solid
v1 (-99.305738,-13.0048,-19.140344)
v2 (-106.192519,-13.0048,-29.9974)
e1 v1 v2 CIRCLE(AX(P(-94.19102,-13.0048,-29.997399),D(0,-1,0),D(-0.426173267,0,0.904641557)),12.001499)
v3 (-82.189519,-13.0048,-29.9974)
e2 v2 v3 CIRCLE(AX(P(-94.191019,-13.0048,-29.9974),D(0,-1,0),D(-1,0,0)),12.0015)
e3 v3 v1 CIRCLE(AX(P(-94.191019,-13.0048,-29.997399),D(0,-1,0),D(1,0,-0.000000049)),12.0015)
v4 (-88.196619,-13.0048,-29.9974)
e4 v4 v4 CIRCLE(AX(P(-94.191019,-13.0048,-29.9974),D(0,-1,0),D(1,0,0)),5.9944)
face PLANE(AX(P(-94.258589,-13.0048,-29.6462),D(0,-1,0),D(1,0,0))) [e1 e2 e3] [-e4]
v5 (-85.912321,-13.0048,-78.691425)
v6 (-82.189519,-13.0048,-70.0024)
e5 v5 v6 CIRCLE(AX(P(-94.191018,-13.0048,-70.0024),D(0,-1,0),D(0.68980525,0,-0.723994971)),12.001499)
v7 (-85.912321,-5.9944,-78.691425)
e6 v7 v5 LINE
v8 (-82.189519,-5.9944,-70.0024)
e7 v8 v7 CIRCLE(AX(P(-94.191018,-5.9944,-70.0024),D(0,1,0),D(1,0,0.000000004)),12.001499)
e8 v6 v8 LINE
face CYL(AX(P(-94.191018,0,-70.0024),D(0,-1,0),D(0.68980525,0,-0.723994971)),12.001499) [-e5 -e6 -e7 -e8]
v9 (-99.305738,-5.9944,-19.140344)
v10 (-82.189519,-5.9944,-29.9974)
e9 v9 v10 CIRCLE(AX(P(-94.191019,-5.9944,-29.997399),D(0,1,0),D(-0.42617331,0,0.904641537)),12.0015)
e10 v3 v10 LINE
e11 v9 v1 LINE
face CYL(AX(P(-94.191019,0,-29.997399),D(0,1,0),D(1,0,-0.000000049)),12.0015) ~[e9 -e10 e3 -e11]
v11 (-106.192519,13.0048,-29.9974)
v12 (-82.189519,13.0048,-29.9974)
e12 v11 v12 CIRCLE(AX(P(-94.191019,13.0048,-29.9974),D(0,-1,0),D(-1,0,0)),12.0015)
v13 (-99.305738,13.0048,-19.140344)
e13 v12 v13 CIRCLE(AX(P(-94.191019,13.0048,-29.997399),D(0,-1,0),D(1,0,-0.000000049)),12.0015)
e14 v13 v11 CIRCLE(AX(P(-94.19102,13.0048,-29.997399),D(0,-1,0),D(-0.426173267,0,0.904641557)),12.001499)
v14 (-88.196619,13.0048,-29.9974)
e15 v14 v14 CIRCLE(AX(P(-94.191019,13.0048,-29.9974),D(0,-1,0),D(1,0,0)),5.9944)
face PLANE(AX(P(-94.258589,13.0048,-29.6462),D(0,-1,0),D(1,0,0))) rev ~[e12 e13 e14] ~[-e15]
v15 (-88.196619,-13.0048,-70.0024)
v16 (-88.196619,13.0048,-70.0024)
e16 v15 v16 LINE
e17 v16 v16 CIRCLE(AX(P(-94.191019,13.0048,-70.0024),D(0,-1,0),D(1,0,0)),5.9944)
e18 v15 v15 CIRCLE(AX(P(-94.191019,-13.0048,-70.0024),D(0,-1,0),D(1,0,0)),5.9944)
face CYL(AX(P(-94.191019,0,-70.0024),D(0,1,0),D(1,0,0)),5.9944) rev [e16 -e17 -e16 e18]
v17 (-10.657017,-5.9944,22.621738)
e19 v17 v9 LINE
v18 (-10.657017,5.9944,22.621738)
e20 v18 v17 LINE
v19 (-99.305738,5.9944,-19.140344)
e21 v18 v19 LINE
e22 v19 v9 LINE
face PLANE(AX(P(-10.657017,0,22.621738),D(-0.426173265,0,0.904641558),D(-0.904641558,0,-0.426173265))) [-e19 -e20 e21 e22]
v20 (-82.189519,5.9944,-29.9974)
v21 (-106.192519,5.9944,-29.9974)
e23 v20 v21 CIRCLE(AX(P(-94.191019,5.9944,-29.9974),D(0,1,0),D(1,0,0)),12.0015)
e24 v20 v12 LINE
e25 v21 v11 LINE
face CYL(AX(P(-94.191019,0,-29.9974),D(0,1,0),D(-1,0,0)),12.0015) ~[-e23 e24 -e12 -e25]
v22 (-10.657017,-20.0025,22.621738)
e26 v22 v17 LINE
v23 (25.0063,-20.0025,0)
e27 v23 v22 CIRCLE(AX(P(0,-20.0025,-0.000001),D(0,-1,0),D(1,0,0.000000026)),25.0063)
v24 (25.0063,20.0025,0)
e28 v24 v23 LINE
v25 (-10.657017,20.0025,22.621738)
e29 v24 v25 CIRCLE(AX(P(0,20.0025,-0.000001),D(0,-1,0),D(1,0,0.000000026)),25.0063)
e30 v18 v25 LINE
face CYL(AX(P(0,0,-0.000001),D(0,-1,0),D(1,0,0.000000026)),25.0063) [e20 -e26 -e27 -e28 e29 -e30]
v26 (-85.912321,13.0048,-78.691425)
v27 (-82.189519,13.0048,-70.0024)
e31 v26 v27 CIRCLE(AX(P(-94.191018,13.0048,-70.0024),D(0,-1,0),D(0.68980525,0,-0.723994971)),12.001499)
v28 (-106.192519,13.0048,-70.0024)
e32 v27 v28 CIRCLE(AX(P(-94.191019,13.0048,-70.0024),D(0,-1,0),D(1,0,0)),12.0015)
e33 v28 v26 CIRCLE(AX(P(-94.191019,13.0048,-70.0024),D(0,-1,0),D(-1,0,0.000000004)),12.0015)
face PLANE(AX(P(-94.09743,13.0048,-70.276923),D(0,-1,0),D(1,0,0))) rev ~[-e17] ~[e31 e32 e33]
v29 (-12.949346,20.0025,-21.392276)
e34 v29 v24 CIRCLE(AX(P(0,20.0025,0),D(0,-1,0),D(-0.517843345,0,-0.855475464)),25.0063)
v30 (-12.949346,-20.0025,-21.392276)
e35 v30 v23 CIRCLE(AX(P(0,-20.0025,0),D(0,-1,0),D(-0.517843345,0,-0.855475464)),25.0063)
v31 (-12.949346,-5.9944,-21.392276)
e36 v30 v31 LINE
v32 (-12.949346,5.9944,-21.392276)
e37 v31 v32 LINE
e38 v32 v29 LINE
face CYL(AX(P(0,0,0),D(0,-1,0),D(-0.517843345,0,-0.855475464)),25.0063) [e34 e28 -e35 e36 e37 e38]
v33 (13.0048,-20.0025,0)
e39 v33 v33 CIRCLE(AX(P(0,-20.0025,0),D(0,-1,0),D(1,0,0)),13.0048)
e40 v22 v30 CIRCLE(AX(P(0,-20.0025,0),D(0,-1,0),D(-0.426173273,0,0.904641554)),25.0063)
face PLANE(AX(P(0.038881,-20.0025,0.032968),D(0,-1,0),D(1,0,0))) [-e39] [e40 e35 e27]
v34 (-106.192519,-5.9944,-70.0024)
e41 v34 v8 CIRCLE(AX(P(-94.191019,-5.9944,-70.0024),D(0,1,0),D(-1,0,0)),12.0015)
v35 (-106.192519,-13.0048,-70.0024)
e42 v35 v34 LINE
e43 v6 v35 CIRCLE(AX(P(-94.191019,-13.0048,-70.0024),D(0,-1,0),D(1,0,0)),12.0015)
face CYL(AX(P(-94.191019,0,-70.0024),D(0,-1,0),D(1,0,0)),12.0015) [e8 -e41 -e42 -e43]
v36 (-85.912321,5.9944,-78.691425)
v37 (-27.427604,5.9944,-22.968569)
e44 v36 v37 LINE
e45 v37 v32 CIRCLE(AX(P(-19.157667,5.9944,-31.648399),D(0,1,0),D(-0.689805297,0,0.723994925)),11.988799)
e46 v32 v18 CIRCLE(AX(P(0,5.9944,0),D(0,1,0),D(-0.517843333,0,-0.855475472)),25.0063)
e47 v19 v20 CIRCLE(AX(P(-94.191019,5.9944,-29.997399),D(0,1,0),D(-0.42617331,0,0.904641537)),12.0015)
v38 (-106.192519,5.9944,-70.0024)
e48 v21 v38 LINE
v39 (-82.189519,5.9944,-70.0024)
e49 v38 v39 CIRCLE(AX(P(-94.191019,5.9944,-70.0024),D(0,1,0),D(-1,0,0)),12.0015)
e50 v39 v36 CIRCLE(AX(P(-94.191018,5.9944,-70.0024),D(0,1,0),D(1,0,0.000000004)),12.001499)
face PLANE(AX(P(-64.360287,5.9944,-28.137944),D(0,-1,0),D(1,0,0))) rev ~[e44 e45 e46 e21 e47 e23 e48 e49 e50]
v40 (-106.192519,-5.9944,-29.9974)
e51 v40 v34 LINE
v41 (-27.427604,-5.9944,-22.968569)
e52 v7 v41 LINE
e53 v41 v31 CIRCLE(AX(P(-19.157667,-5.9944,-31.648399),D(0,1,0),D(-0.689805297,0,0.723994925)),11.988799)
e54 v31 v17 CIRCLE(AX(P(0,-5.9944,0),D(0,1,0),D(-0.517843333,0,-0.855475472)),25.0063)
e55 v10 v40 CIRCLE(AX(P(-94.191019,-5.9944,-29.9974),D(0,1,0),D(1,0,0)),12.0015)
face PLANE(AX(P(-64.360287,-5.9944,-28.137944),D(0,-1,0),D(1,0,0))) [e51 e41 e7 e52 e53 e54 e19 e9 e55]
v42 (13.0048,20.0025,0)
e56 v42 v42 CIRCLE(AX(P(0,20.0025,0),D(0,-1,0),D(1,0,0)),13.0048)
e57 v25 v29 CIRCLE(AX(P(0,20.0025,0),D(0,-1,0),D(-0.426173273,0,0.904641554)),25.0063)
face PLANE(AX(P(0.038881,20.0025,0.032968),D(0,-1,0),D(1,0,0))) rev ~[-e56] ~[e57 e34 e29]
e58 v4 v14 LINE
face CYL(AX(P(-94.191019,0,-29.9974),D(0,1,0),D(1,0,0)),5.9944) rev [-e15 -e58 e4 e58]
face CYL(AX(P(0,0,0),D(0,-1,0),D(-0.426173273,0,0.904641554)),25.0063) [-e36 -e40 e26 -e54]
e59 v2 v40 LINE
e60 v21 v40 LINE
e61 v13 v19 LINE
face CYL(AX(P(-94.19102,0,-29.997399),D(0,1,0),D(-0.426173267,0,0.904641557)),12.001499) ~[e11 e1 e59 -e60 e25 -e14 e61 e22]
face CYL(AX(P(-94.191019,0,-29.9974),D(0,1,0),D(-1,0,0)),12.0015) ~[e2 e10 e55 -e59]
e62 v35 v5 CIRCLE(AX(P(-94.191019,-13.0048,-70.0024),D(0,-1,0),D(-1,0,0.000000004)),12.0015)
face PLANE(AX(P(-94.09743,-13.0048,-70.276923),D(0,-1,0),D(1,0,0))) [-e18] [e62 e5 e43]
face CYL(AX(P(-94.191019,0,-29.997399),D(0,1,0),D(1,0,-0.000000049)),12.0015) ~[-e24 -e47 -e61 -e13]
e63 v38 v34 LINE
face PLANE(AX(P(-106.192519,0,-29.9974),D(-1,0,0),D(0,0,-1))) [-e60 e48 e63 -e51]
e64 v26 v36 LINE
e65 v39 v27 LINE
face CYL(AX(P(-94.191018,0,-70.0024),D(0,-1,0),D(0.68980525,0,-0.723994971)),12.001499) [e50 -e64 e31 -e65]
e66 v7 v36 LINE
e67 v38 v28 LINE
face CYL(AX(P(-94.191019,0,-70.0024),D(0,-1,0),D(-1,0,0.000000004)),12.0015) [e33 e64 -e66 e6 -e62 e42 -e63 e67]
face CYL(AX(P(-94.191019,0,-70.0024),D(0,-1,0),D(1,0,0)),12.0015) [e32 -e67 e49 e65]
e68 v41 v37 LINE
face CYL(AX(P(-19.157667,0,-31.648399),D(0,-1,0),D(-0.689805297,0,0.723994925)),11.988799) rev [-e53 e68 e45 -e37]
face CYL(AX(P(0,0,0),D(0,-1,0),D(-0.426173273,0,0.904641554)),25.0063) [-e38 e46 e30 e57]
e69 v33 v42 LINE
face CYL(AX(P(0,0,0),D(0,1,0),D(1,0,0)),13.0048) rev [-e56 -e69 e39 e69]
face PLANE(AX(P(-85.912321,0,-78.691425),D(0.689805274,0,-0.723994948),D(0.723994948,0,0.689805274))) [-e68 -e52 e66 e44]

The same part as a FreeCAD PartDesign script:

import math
import FreeCAD as App
import Part
import Sketcher

V = App.Vector
Q = App.Units.Quantity

doc = App.newDocument("Part")
params = doc.addObject("Spreadsheet::Sheet", "Params")
for row, (alias, value) in enumerate([
    ("sketch1_diameter", "1.024 in"),
    ("pad1_length", "1.575 in"),
    ("sketch2_radius", "0.472 in"),
    ("sketch2_height", "1.575 in"),
    ("sketch2_length", "3.858 in"),
    ("pad2_length", "0.472 in"),
    ("sketch3_diameter", "0.472 in"),
    ("pad3_length", "1.024 in"),
], start=1):
    params.set(f"A{row}", alias)
    params.set(f"B{row}", "=" + value)
    params.setAlias(f"B{row}", alias)

body = doc.addObject("PartDesign::Body", "Body")

sketch1 = body.newObject("Sketcher::SketchObject", "Sketch")
sketch1.AttachmentSupport = (doc.getObject("XZ_Plane"), [""])
sketch1.MapMode = "FlatFace"
sketch1.addGeometry([
    Part.ArcOfCircle(Part.Circle(V(0, 0, 0), V(0, 0, 1), 25.0063), math.radians(-121.187698), math.radians(0)),
    Part.ArcOfCircle(Part.Circle(V(0, -0.000001, 0), V(0, 0, 1), 25.0063), math.radians(0.000002), math.radians(115.22495)),
    Part.ArcOfCircle(Part.Circle(V(0, 0, 0), V(0, 0, 1), 25.0063), math.radians(115.22495), math.radians(238.812303)),
    Part.Circle(V(0, 0, 0), V(0, 0, 1), 13.0048),
], False)
sketch1.addConstraint([
    Sketcher.Constraint("Tangent", 0, 2, 1, 1),
    Sketcher.Constraint("Tangent", 1, 2, 2, 1),
    Sketcher.Constraint("Tangent", 2, 2, 0, 1),
    Sketcher.Constraint("Coincident", 0, 3, -1, 1),
    Sketcher.Constraint("Coincident", 3, 3, -1, 1),
    Sketcher.Constraint("PointOnObject", 0, 2, -1),
    Sketcher.Constraint("Diameter", 3, Q("1.024 in")),
    Sketcher.Constraint("Radius", 0, Q("0.9845 in")),
    Sketcher.Constraint("DistanceY", 1, 3, 1, 2, Q("22.621739 mm")),
    Sketcher.Constraint("DistanceX", 2, 2, -1, 1, Q("12.949346 mm")),
])
sketch1.setExpression("Constraints[6]", "Params.sketch1_diameter")
pad1 = body.newObject("PartDesign::Pad", "Pad")
pad1.Profile = sketch1
pad1.setExpression("Length", "Params.pad1_length")
pad1.Midplane = True

sketch2 = body.newObject("Sketcher::SketchObject", "Sketch001")
sketch2.AttachmentSupport = (doc.getObject("XZ_Plane"), [""])
sketch2.MapMode = "FlatFace"
sketch2.addGeometry([
    Part.ArcOfCircle(Part.Circle(V(0, 0, 0), V(0, 0, 1), 25.0063), math.radians(115.22495), math.radians(238.812303)),
    Part.LineSegment(V(-10.657017, 22.621738, 0), V(-99.305738, -19.140344, 0)),
    Part.ArcOfCircle(Part.Circle(V(-94.191019, -29.997399, 0), V(0, 0, 1), 12.0015), math.radians(-0.000003), math.radians(115.224953)),
    Part.ArcOfCircle(Part.Circle(V(-94.191019, -29.9974, 0), V(0, 0, 1), 12.0015), math.radians(180), math.radians(360)),
    Part.LineSegment(V(-106.192519, -29.9974, 0), V(-106.192519, -70.0024, 0)),
    Part.ArcOfCircle(Part.Circle(V(-94.191019, -70.0024, 0), V(0, 0, 1), 12.0015), math.radians(0), math.radians(180)),
    Part.ArcOfCircle(Part.Circle(V(-94.191018, -70.0024, 0), V(0, 0, 1), 12.001499), math.radians(-46.385305), math.radians(0)),
    Part.LineSegment(V(-85.912321, -78.691425, 0), V(-27.427604, -22.968569, 0)),
    Part.ArcOfCircle(Part.Circle(V(-19.157667, -31.648399, 0), V(0, 0, 1), 11.988799), math.radians(58.812295), math.radians(133.614698)),
], False)
sketch2.addConstraint([
    Sketcher.Constraint("Tangent", 0, 1, 1, 1),
    Sketcher.Constraint("Tangent", 1, 2, 2, 2),
    Sketcher.Constraint("Tangent", 2, 1, 3, 2),
    Sketcher.Constraint("Tangent", 3, 1, 4, 1),
    Sketcher.Constraint("Tangent", 4, 2, 5, 2),
    Sketcher.Constraint("Tangent", 5, 1, 6, 2),
    Sketcher.Constraint("Tangent", 6, 1, 7, 1),
    Sketcher.Constraint("Tangent", 7, 2, 8, 2),
    Sketcher.Constraint("Tangent", 8, 1, 0, 2),
    Sketcher.Constraint("Vertical", 4),
    Sketcher.Constraint("Coincident", 0, 3, -1, 1),
    Sketcher.Constraint("Equal", 2, 3),
    Sketcher.Constraint("Equal", 3, 5),
    Sketcher.Constraint("Equal", 5, 6),
    Sketcher.Constraint("Horizontal", 3, 3, 2, 1),
    Sketcher.Constraint("Horizontal", 4, 2, 5, 1),
    Sketcher.Constraint("Radius", 8, Q("0.472 in")),
    Sketcher.Constraint("Radius", 0, Q("0.9845 in")),
    Sketcher.Constraint("Radius", 2, Q("0.4725 in")),
    Sketcher.Constraint("DistanceY", 4, 2, 4, 1, Q("1.575 in")),
    Sketcher.Constraint("DistanceY", 6, 3, 8, 3, Q("1.5100001 in")),
    Sketcher.Constraint("Distance", 1, Q("3.858 in")),
    Sketcher.Constraint("DistanceY", 2, 3, -1, 1, Q("1.181 in")),
])
sketch2.setExpression("Constraints[16]", "Params.sketch2_radius")
sketch2.setExpression("Constraints[19]", "Params.sketch2_height")
sketch2.setExpression("Constraints[21]", "Params.sketch2_length")
pad2 = body.newObject("PartDesign::Pad", "Pad001")
pad2.Profile = sketch2
pad2.setExpression("Length", "Params.pad2_length")
pad2.Midplane = True

sketch3 = body.newObject("Sketcher::SketchObject", "Sketch002")
sketch3.AttachmentSupport = (doc.getObject("XZ_Plane"), [""])
sketch3.MapMode = "FlatFace"
sketch3.addGeometry([
    Part.ArcOfCircle(Part.Circle(V(-94.191019, -29.997399, 0), V(0, 0, 1), 12.0015), math.radians(-0.000003), math.radians(115.224953)),
    Part.ArcOfCircle(Part.Circle(V(-94.19102, -29.997399, 0), V(0, 0, 1), 12.001499), math.radians(115.22495), math.radians(180.000006)),
    Part.ArcOfCircle(Part.Circle(V(-94.191019, -29.9974, 0), V(0, 0, 1), 12.0015), math.radians(180), math.radians(360)),
    Part.Circle(V(-94.191019, -29.9974, 0), V(0, 0, 1), 5.9944),
    Part.ArcOfCircle(Part.Circle(V(-94.191019, -70.0024, 0), V(0, 0, 1), 12.0015), math.radians(180), math.radians(313.614699)),
    Part.ArcOfCircle(Part.Circle(V(-94.191018, -70.0024, 0), V(0, 0, 1), 12.001499), math.radians(-46.385305), math.radians(0)),
    Part.ArcOfCircle(Part.Circle(V(-94.191019, -70.0024, 0), V(0, 0, 1), 12.0015), math.radians(0), math.radians(180)),
    Part.Circle(V(-94.191019, -70.0024, 0), V(0, 0, 1), 5.9944),
], False)
sketch3.addConstraint([
    Sketcher.Constraint("Tangent", 0, 2, 1, 1),
    Sketcher.Constraint("Tangent", 1, 2, 2, 1),
    Sketcher.Constraint("Tangent", 2, 2, 0, 1),
    Sketcher.Constraint("Tangent", 4, 2, 5, 1),
    Sketcher.Constraint("Tangent", 5, 2, 6, 1),
    Sketcher.Constraint("Tangent", 6, 2, 4, 1),
    Sketcher.Constraint("Coincident", 3, 3, 0, 3),
    Sketcher.Constraint("Coincident", 7, 3, 4, 3),
    Sketcher.Constraint("Equal", 2, 4),
    Sketcher.Constraint("Equal", 3, 7),
    Sketcher.Constraint("Horizontal", 3, 3, 1, 2),
    Sketcher.Constraint("Horizontal", 1, 2, 2, 2),
    Sketcher.Constraint("Horizontal", 7, 3, 5, 2),
    Sketcher.Constraint("Horizontal", 5, 2, 6, 2),
    Sketcher.Constraint("Vertical", 3, 3, 4, 3),
    Sketcher.Constraint("Diameter", 3, Q("0.472 in")),
    Sketcher.Constraint("Radius", 0, Q("0.4725 in")),
    Sketcher.Constraint("DistanceY", 0, 3, -1, 1, Q("1.181 in")),
    Sketcher.Constraint("DistanceY", 4, 3, -1, 1, Q("2.756 in")),
    Sketcher.Constraint("DistanceX", 6, 3, 4, 2, Q("8.278698 mm")),
    Sketcher.Constraint("DistanceX", 0, 3, -1, 1, Q("94.191019 mm")),
    Sketcher.Constraint("DistanceX", 0, 2, 1, 3, Q("5.114718 mm")),
])
sketch3.setExpression("Constraints[15]", "Params.sketch3_diameter")
pad3 = body.newObject("PartDesign::Pad", "Pad002")
pad3.Profile = sketch3
pad3.setExpression("Length", "Params.pad3_length")
pad3.Midplane = True

doc.recompute()
